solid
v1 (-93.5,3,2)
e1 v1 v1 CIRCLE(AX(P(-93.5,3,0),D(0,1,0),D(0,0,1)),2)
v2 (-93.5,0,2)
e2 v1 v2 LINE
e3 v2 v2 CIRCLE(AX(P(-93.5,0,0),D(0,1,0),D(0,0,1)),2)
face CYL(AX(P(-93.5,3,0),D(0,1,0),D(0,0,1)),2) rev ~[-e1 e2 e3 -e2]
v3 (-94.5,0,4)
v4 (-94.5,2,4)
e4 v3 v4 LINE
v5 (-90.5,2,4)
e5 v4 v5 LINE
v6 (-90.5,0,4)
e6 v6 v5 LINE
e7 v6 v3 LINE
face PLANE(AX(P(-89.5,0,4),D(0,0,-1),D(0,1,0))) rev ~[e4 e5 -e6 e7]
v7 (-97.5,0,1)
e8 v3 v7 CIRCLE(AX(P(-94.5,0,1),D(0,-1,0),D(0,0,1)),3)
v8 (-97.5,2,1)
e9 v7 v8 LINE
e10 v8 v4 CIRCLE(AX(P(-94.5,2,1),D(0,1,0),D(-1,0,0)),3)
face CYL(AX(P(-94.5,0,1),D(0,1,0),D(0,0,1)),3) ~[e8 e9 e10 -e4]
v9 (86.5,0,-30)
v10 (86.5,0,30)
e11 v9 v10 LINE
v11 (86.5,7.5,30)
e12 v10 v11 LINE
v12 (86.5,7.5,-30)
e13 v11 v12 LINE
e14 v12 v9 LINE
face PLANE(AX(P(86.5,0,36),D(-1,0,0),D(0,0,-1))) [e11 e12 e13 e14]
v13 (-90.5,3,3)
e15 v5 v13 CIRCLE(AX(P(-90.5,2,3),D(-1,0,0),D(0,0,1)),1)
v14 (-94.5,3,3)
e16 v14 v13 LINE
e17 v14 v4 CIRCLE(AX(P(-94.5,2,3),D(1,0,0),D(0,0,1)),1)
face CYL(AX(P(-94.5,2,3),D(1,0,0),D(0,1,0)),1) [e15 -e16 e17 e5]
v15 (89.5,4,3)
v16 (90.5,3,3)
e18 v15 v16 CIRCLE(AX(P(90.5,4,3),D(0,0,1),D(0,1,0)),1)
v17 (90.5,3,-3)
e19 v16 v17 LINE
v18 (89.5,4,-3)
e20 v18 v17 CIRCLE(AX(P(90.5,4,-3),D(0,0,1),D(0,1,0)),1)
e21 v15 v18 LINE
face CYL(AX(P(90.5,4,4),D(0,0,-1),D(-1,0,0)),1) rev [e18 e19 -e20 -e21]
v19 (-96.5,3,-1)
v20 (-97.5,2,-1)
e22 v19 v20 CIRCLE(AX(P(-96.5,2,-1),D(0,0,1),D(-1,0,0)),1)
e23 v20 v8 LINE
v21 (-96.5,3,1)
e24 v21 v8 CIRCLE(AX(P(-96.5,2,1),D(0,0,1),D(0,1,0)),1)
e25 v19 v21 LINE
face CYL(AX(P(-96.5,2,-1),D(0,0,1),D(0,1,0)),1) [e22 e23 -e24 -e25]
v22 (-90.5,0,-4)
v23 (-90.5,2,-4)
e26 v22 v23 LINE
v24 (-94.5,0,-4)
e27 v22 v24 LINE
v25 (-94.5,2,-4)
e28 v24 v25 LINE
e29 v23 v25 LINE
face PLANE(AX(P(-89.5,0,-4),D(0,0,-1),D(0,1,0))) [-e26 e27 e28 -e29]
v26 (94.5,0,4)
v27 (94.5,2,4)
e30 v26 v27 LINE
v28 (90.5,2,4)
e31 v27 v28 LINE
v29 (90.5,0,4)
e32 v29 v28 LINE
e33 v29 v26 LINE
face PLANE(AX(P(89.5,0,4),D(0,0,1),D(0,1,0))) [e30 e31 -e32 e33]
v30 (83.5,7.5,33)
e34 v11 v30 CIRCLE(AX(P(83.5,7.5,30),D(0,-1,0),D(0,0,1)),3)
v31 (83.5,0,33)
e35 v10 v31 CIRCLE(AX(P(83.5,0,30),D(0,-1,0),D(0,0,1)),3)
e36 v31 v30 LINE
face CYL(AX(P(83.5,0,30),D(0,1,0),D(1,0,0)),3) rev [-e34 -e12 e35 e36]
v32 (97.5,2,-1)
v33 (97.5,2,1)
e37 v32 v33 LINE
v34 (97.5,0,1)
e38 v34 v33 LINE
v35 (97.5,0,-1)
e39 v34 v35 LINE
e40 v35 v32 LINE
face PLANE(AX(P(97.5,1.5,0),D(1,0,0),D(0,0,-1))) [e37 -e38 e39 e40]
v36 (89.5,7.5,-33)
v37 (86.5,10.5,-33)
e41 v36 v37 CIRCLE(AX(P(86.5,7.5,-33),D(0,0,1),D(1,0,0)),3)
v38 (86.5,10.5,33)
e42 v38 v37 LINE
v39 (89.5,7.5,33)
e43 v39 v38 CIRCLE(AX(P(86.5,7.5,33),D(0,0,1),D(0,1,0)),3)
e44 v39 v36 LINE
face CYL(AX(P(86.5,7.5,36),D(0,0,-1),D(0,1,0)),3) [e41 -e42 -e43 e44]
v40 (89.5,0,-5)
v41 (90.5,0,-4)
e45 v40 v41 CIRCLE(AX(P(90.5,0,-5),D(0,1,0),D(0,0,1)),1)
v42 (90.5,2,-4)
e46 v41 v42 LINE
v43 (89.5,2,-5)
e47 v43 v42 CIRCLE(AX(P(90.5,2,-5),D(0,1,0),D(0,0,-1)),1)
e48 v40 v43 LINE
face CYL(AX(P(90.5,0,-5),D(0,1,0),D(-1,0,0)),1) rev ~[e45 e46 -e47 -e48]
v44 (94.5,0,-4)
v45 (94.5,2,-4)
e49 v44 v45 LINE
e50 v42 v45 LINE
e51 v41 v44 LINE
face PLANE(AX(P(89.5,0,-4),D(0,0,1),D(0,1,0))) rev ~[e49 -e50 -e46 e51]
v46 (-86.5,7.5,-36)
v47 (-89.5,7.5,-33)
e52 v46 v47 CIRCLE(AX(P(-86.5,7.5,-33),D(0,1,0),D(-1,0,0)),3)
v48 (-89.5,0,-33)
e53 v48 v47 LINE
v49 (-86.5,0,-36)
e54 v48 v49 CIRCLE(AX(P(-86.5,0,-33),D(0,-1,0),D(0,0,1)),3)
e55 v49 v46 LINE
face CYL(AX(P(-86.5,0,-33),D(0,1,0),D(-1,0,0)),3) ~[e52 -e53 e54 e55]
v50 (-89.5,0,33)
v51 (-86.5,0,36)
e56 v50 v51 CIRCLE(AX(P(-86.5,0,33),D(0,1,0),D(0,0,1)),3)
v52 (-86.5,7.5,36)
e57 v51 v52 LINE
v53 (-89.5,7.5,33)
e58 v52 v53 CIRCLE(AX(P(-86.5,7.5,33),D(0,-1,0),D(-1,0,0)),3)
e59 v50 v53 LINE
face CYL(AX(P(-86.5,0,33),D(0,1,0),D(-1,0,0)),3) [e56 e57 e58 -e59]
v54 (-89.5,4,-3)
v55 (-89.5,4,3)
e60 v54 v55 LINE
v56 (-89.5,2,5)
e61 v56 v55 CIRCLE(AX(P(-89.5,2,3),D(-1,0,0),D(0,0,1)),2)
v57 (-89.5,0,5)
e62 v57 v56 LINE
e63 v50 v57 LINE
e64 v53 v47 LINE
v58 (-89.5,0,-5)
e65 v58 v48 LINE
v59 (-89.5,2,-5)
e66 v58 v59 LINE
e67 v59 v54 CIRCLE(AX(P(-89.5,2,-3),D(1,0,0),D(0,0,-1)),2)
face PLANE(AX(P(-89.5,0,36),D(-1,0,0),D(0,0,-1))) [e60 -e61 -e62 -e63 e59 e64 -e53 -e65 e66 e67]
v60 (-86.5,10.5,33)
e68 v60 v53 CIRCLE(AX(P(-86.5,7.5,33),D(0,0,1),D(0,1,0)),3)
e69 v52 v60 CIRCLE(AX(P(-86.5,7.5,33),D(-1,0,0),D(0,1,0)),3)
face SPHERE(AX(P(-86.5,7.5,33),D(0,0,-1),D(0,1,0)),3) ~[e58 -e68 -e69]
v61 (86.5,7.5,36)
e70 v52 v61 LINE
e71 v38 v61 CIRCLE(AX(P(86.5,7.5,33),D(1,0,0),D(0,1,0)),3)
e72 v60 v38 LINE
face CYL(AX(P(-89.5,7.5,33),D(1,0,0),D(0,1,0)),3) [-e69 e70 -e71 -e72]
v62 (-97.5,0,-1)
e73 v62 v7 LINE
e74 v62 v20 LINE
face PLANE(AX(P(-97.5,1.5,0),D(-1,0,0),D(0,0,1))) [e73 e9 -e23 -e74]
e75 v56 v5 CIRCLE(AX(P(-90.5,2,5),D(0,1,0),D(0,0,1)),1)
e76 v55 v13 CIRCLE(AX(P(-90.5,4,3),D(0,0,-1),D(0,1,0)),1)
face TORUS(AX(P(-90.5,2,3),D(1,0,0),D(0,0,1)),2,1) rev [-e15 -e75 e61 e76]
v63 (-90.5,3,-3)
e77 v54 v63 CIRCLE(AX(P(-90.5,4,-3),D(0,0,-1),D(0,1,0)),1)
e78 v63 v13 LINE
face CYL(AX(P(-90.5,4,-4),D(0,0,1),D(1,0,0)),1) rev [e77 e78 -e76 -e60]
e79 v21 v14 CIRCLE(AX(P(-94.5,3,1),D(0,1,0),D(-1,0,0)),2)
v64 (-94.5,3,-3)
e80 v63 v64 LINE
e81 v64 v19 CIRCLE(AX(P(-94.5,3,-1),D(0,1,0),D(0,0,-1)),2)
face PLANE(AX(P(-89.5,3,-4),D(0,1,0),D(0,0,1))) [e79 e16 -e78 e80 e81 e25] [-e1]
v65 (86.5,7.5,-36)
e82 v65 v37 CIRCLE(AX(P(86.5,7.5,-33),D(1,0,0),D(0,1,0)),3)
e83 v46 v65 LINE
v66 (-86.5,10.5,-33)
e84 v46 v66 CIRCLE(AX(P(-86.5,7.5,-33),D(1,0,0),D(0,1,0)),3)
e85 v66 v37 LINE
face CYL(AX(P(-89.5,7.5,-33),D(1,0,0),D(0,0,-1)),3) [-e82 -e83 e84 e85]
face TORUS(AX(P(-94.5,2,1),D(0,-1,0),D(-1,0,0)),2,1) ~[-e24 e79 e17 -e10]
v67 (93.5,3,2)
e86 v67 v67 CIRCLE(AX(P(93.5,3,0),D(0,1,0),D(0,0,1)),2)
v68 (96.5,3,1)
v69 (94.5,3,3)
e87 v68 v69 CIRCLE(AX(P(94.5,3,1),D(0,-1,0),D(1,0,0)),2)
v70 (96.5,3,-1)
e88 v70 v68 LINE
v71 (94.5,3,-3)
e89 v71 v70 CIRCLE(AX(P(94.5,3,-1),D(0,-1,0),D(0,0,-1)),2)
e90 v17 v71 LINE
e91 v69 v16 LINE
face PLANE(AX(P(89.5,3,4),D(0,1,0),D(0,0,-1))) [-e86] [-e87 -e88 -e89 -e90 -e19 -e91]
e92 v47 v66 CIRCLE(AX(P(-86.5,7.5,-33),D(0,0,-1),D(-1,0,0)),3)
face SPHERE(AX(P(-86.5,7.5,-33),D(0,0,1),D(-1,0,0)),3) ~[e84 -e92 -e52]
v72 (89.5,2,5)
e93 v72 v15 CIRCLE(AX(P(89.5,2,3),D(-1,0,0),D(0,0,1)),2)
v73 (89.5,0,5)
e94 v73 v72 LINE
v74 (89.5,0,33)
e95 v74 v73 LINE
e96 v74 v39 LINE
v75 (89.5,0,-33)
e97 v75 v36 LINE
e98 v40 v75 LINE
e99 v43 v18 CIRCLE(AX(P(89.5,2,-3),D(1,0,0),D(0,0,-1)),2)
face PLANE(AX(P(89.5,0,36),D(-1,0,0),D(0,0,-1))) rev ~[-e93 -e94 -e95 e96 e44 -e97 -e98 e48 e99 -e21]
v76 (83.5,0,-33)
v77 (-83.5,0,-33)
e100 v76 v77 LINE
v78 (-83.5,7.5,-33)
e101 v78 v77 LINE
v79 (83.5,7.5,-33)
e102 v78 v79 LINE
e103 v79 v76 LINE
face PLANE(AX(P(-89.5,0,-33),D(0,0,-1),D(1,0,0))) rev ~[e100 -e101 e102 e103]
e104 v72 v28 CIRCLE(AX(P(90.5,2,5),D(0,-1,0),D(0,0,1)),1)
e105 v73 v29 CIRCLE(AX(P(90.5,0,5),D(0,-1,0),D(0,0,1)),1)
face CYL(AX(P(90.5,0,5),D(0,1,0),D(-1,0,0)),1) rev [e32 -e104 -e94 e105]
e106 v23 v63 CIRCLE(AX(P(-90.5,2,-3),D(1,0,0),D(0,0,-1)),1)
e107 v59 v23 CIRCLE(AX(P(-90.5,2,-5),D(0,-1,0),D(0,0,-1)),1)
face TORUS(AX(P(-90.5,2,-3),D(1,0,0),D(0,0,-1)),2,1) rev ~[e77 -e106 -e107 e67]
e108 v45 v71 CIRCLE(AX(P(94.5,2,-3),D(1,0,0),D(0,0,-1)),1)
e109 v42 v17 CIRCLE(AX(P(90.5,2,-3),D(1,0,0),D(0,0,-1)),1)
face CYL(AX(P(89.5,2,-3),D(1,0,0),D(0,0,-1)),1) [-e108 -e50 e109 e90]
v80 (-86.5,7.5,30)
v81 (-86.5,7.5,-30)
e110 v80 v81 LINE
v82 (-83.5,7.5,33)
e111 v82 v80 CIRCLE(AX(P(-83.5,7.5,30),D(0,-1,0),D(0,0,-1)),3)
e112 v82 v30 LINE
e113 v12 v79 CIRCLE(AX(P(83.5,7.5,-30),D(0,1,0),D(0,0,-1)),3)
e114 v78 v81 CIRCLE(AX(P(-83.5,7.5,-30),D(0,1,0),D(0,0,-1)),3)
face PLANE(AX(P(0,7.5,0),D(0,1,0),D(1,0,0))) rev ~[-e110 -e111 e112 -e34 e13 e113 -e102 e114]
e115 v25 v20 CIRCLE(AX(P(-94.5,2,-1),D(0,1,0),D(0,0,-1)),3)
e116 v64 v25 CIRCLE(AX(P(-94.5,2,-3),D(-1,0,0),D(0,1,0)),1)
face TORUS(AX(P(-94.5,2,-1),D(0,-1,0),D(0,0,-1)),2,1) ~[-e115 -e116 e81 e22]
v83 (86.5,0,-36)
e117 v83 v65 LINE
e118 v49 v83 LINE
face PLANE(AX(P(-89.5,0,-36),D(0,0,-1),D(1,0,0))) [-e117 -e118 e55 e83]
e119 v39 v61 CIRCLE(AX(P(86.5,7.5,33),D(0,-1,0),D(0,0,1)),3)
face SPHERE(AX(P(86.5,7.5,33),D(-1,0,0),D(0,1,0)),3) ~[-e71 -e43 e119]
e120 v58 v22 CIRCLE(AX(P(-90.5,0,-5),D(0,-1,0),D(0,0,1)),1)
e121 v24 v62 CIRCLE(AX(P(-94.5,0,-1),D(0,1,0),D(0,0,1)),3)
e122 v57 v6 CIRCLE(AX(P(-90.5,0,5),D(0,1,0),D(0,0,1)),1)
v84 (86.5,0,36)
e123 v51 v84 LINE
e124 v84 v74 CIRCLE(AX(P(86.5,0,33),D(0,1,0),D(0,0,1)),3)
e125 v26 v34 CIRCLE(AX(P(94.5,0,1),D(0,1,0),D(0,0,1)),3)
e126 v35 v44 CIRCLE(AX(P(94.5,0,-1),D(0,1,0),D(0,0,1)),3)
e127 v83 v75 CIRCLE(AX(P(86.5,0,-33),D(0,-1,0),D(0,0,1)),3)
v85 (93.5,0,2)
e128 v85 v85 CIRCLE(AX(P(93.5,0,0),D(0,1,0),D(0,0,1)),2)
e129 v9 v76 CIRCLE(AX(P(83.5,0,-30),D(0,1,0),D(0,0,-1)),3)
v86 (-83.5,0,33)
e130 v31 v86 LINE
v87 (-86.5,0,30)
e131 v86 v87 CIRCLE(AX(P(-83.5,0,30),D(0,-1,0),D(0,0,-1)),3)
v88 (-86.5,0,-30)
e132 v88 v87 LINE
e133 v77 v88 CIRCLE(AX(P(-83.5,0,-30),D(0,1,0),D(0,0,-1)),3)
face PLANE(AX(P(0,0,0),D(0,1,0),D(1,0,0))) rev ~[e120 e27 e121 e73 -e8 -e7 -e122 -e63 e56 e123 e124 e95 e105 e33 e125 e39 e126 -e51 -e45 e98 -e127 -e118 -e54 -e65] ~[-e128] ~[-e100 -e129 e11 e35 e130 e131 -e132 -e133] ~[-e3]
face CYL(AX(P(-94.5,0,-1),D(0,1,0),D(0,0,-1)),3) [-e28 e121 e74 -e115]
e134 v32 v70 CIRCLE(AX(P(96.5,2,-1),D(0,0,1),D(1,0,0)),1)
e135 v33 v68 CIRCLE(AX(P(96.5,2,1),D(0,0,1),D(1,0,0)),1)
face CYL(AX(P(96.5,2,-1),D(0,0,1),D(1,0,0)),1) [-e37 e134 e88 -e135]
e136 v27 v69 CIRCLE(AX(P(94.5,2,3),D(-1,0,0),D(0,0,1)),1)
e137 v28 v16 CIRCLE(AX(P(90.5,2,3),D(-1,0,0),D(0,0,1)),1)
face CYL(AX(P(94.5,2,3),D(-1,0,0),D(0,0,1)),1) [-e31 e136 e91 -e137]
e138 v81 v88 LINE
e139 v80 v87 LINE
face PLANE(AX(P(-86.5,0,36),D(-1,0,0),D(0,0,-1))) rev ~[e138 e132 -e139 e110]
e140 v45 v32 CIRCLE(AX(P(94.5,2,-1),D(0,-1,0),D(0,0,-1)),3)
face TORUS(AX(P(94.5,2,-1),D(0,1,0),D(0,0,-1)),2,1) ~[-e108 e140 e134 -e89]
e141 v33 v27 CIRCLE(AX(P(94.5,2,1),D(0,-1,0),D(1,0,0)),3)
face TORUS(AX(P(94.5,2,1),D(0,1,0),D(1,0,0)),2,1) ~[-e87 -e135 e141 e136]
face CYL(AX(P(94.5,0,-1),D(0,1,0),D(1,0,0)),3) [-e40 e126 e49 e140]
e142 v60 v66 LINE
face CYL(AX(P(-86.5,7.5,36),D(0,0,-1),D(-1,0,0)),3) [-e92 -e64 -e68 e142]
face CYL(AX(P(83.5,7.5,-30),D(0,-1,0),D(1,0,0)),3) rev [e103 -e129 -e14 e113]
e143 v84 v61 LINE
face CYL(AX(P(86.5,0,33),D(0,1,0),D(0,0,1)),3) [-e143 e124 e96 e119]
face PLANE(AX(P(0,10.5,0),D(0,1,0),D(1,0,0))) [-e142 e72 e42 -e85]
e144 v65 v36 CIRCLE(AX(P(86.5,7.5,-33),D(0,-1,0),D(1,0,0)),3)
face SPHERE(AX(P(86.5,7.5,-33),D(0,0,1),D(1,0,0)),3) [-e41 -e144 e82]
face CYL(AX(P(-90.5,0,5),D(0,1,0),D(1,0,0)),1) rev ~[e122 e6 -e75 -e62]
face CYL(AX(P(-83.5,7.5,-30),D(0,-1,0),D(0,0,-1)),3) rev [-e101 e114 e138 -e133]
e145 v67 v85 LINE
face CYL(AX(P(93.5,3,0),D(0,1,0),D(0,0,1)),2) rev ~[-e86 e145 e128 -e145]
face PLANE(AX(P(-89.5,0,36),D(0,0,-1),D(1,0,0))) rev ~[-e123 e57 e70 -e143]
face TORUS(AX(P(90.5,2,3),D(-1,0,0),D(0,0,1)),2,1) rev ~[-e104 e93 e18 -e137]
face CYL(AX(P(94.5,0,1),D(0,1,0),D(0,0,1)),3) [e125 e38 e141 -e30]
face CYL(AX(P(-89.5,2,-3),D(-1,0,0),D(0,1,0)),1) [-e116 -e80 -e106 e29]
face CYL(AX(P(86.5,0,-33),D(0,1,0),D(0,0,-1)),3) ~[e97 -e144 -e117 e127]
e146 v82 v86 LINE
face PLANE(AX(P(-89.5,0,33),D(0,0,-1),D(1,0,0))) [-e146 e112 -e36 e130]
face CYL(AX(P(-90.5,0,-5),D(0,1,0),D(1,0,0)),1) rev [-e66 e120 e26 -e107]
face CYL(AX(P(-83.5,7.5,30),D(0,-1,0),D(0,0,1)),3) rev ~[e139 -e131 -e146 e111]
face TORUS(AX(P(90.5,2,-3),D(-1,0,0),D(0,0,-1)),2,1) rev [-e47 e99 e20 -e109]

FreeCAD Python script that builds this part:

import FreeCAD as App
import Part
import Sketcher
from FreeCAD import Vector
Q = App.Units.Quantity


def edges_at(feature, points):
    """Names of the edges that pass closest to the given points."""
    edges = feature.Shape.Edges
    near = lambda p: min(range(len(edges)), key=lambda i: edges[i].distToShape(Part.Vertex(*p))[0])
    return sorted({f"Edge{near(p) + 1}" for p in points})


def faces_at(feature, points):
    """Names of the faces that lie closest to the given points."""
    faces = feature.Shape.Faces
    near = lambda p: min(range(len(faces)), key=lambda i: faces[i].distToShape(Part.Vertex(*p))[0])
    return sorted({f"Face{near(p) + 1}" for p in points})

doc = App.newDocument("Part")
body = doc.addObject("PartDesign::Body", "Body")

# Sketch on XZ plane
sketch1 = body.newObject("Sketcher::SketchObject", "Sketch")
sketch1.AttachmentSupport = (doc.getObject("XZ_Plane"), [""])
sketch1.MapMode = "FlatFace"
sketch1.addGeometry(Part.LineSegment(Vector(-90, -36, 0), Vector(-90, 36, 0)), False)
sketch1.addGeometry(Part.LineSegment(Vector(-90, 36, 0), Vector(90, 36, 0)), False)
sketch1.addGeometry(Part.LineSegment(Vector(90, 36, 0), Vector(90, -36, 0)), False)
sketch1.addGeometry(Part.LineSegment(Vector(90, -36, 0), Vector(-90, -36, 0)), False)
sketch1.addConstraint(Sketcher.Constraint("Coincident", 0, 2, 1, 1))
sketch1.addConstraint(Sketcher.Constraint("Coincident", 1, 2, 2, 1))
sketch1.addConstraint(Sketcher.Constraint("Coincident", 2, 2, 3, 1))
sketch1.addConstraint(Sketcher.Constraint("Coincident", 3, 2, 0, 1))
sketch1.addConstraint(Sketcher.Constraint("Vertical", 0))
sketch1.addConstraint(Sketcher.Constraint("Horizontal", 1))
sketch1.addConstraint(Sketcher.Constraint("Vertical", 2))
sketch1.addConstraint(Sketcher.Constraint("Horizontal", 3))
sketch1.addConstraint(Sketcher.Constraint("Symmetric", 0, 2, 2, 2, -1, 1))
sketch1.addConstraint(Sketcher.Constraint("DistanceX", 1, 1, 1, 2, Q("179 mm")))
sketch1.addConstraint(Sketcher.Constraint("DistanceY", 0, 1, 0, 2, Q("72 mm")))
pad1 = body.newObject("PartDesign::Pad", "Pad")
pad1.Profile = sketch1
pad1.Length = 10.5
pad1.Reversed = True
doc.recompute()

thickness = body.newObject("PartDesign::Thickness", "Thickness")
thickness.Base = (pad1, faces_at(pad1, [(0, 0, 0)]))
thickness.Value = 3
thickness.Reversed = True
thickness.Join = "Intersection"

# Sketch on YZ plane
sketch2 = body.newObject("Sketcher::SketchObject", "Sketch001")
sketch2.AttachmentSupport = (doc.getObject("YZ_Plane"), [""])
sketch2.MapMode = "FlatFace"
sketch2.AttachmentOffset = App.Placement(Vector(0, 0, -89.5), App.Rotation())
sketch2.addGeometry(Part.LineSegment(Vector(3, -4, 0), Vector(0, -4, 0)), False)
sketch2.addGeometry(Part.LineSegment(Vector(0, -4, 0), Vector(0, 4, 0)), False)
sketch2.addGeometry(Part.LineSegment(Vector(0, 4, 0), Vector(3, 4, 0)), False)
sketch2.addGeometry(Part.LineSegment(Vector(3, 4, 0), Vector(3, -4, 0)), False)
sketch2.addConstraint(Sketcher.Constraint("Coincident", 0, 2, 1, 1))
sketch2.addConstraint(Sketcher.Constraint("Coincident", 1, 2, 2, 1))
sketch2.addConstraint(Sketcher.Constraint("Coincident", 2, 2, 3, 1))
sketch2.addConstraint(Sketcher.Constraint("Coincident", 3, 2, 0, 1))
sketch2.addConstraint(Sketcher.Constraint("Horizontal", 0))
sketch2.addConstraint(Sketcher.Constraint("Vertical", 1))
sketch2.addConstraint(Sketcher.Constraint("Horizontal", 2))
sketch2.addConstraint(Sketcher.Constraint("Vertical", 3))
sketch2.addConstraint(Sketcher.Constraint("Symmetric", 0, 2, 1, 2, -1, 1))
sketch2.addConstraint(Sketcher.Constraint("DistanceX", 0, 2, 0, 1, Q("3 mm")))
sketch2.addConstraint(Sketcher.Constraint("DistanceY", 1, 1, 1, 2, Q("8 mm")))
pad2 = body.newObject("PartDesign::Pad", "Pad001")
pad2.Profile = sketch2
pad2.Length = 8
pad2.Reversed = True

# Sketch on YZ plane
sketch3 = body.newObject("Sketcher::SketchObject", "Sketch002")
sketch3.AttachmentSupport = (doc.getObject("YZ_Plane"), [""])
sketch3.MapMode = "FlatFace"
sketch3.AttachmentOffset = App.Placement(Vector(0, 0, 89.5), App.Rotation())
sketch3.addGeometry(Part.LineSegment(Vector(3, 4, 0), Vector(0, 4, 0)), False)
sketch3.addGeometry(Part.LineSegment(Vector(0, 4, 0), Vector(0, -4, 0)), False)
sketch3.addGeometry(Part.LineSegment(Vector(0, -4, 0), Vector(3, -4, 0)), False)
sketch3.addGeometry(Part.LineSegment(Vector(3, -4, 0), Vector(3, 4, 0)), False)
sketch3.addConstraint(Sketcher.Constraint("Coincident", 0, 2, 1, 1))
sketch3.addConstraint(Sketcher.Constraint("Coincident", 1, 2, 2, 1))
sketch3.addConstraint(Sketcher.Constraint("Coincident", 2, 2, 3, 1))
sketch3.addConstraint(Sketcher.Constraint("Coincident", 3, 2, 0, 1))
sketch3.addConstraint(Sketcher.Constraint("Horizontal", 0))
sketch3.addConstraint(Sketcher.Constraint("Vertical", 1))
sketch3.addConstraint(Sketcher.Constraint("Horizontal", 2))
sketch3.addConstraint(Sketcher.Constraint("Vertical", 3))
sketch3.addConstraint(Sketcher.Constraint("Symmetric", 0, 2, 1, 2, -1, 1))
sketch3.addConstraint(Sketcher.Constraint("DistanceX", 0, 2, 0, 1, Q("3 mm")))
sketch3.addConstraint(Sketcher.Constraint("DistanceY", 1, 2, 1, 1, Q("8 mm")))
pad3 = body.newObject("PartDesign::Pad", "Pad002")
pad3.Profile = sketch3
pad3.Length = 8

# Sketch on XZ plane
sketch4 = body.newObject("Sketcher::SketchObject", "Sketch003")
sketch4.AttachmentSupport = (doc.getObject("XZ_Plane"), [""])
sketch4.MapMode = "FlatFace"
sketch4.AttachmentOffset = App.Placement(Vector(0, 0, -3), App.Rotation())
sketch4.addGeometry(Part.Circle(Vector(-93.5, 0, 0), Vector(0, 0, 1), 2), False)
sketch4.addConstraint(Sketcher.Constraint("PointOnObject", 0, 3, -1))
sketch4.addConstraint(Sketcher.Constraint("Diameter", 0, Q("4 mm")))
sketch4.addConstraint(Sketcher.Constraint("DistanceX", 0, 3, -1, 1, Q("93.5 mm")))
pocket1 = body.newObject("PartDesign::Pocket", "Pocket")
pocket1.Profile = sketch4
pocket1.Length = 8
pocket1.Reversed = True

# Sketch on XZ plane
sketch5 = body.newObject("Sketcher::SketchObject", "Sketch004")
sketch5.AttachmentSupport = (doc.getObject("XZ_Plane"), [""])
sketch5.MapMode = "FlatFace"
sketch5.AttachmentOffset = App.Placement(Vector(0, 0, -3), App.Rotation())
sketch5.addGeometry(Part.Circle(Vector(93.5, 0, 0), Vector(0, 0, 1), 2), False)
sketch5.addConstraint(Sketcher.Constraint("PointOnObject", 0, 3, -1))
sketch5.addConstraint(Sketcher.Constraint("Diameter", 0, Q("4 mm")))
sketch5.addConstraint(Sketcher.Constraint("DistanceX", -1, 1, 0, 3, Q("93.5 mm")))
pocket2 = body.newObject("PartDesign::Pocket", "Pocket001")
pocket2.Profile = sketch5
pocket2.Length = 8
pocket2.Reversed = True
doc.recompute()

fillet = body.newObject("PartDesign::Fillet", "Fillet")
fillet.Base = (pocket2, edges_at(pocket2, [
    (-89.5, 10.5, 0),
    (86.5, 3.75, 33),
    (86.5, 3.75, -33),
    (-86.5, 3.75, -33),
    (-86.5, 3.75, 33),
    (0, 10.5, 36),
    (-97.5, 1.5, -4),
    (-97.5, 1.5, 4),
    (97.5, 1.5, 4),
    (97.5, 1.5, -4),
    (89.5, 10.5, 0),
    (89.5, 5.25, 36),
    (-89.5, 5.25, 36),
    (-89.5, 5.25, -36),
    (89.5, 5.25, -36),
    (0, 10.5, -36),
]))
fillet.Radius = 3
doc.recompute()

fillet2 = body.newObject("PartDesign::Fillet", "Fillet001")
fillet2.Base = (fillet, edges_at(fillet, [
    (92, 3, -4),
    (96.621, 3, -3.121),
    (96.621, 3, 3.121),
    (-97.5, 3, 0),
    (-92, 3, -4),
    (-92, 3, 4),
    (-96.621, 3, 3.121),
    (-96.621, 3, -3.121),
    (-89.5, 1.5, -4),
    (-89.5, 1.5, 4),
    (-89.5, 3, 0),
    (89.5, 1.5, 4),
    (89.5, 1.5, -4),
    (89.5, 3, 0),
    (97.5, 3, 0),
    (92, 3, 4),
]))
fillet2.Radius = 1

doc.recompute()
